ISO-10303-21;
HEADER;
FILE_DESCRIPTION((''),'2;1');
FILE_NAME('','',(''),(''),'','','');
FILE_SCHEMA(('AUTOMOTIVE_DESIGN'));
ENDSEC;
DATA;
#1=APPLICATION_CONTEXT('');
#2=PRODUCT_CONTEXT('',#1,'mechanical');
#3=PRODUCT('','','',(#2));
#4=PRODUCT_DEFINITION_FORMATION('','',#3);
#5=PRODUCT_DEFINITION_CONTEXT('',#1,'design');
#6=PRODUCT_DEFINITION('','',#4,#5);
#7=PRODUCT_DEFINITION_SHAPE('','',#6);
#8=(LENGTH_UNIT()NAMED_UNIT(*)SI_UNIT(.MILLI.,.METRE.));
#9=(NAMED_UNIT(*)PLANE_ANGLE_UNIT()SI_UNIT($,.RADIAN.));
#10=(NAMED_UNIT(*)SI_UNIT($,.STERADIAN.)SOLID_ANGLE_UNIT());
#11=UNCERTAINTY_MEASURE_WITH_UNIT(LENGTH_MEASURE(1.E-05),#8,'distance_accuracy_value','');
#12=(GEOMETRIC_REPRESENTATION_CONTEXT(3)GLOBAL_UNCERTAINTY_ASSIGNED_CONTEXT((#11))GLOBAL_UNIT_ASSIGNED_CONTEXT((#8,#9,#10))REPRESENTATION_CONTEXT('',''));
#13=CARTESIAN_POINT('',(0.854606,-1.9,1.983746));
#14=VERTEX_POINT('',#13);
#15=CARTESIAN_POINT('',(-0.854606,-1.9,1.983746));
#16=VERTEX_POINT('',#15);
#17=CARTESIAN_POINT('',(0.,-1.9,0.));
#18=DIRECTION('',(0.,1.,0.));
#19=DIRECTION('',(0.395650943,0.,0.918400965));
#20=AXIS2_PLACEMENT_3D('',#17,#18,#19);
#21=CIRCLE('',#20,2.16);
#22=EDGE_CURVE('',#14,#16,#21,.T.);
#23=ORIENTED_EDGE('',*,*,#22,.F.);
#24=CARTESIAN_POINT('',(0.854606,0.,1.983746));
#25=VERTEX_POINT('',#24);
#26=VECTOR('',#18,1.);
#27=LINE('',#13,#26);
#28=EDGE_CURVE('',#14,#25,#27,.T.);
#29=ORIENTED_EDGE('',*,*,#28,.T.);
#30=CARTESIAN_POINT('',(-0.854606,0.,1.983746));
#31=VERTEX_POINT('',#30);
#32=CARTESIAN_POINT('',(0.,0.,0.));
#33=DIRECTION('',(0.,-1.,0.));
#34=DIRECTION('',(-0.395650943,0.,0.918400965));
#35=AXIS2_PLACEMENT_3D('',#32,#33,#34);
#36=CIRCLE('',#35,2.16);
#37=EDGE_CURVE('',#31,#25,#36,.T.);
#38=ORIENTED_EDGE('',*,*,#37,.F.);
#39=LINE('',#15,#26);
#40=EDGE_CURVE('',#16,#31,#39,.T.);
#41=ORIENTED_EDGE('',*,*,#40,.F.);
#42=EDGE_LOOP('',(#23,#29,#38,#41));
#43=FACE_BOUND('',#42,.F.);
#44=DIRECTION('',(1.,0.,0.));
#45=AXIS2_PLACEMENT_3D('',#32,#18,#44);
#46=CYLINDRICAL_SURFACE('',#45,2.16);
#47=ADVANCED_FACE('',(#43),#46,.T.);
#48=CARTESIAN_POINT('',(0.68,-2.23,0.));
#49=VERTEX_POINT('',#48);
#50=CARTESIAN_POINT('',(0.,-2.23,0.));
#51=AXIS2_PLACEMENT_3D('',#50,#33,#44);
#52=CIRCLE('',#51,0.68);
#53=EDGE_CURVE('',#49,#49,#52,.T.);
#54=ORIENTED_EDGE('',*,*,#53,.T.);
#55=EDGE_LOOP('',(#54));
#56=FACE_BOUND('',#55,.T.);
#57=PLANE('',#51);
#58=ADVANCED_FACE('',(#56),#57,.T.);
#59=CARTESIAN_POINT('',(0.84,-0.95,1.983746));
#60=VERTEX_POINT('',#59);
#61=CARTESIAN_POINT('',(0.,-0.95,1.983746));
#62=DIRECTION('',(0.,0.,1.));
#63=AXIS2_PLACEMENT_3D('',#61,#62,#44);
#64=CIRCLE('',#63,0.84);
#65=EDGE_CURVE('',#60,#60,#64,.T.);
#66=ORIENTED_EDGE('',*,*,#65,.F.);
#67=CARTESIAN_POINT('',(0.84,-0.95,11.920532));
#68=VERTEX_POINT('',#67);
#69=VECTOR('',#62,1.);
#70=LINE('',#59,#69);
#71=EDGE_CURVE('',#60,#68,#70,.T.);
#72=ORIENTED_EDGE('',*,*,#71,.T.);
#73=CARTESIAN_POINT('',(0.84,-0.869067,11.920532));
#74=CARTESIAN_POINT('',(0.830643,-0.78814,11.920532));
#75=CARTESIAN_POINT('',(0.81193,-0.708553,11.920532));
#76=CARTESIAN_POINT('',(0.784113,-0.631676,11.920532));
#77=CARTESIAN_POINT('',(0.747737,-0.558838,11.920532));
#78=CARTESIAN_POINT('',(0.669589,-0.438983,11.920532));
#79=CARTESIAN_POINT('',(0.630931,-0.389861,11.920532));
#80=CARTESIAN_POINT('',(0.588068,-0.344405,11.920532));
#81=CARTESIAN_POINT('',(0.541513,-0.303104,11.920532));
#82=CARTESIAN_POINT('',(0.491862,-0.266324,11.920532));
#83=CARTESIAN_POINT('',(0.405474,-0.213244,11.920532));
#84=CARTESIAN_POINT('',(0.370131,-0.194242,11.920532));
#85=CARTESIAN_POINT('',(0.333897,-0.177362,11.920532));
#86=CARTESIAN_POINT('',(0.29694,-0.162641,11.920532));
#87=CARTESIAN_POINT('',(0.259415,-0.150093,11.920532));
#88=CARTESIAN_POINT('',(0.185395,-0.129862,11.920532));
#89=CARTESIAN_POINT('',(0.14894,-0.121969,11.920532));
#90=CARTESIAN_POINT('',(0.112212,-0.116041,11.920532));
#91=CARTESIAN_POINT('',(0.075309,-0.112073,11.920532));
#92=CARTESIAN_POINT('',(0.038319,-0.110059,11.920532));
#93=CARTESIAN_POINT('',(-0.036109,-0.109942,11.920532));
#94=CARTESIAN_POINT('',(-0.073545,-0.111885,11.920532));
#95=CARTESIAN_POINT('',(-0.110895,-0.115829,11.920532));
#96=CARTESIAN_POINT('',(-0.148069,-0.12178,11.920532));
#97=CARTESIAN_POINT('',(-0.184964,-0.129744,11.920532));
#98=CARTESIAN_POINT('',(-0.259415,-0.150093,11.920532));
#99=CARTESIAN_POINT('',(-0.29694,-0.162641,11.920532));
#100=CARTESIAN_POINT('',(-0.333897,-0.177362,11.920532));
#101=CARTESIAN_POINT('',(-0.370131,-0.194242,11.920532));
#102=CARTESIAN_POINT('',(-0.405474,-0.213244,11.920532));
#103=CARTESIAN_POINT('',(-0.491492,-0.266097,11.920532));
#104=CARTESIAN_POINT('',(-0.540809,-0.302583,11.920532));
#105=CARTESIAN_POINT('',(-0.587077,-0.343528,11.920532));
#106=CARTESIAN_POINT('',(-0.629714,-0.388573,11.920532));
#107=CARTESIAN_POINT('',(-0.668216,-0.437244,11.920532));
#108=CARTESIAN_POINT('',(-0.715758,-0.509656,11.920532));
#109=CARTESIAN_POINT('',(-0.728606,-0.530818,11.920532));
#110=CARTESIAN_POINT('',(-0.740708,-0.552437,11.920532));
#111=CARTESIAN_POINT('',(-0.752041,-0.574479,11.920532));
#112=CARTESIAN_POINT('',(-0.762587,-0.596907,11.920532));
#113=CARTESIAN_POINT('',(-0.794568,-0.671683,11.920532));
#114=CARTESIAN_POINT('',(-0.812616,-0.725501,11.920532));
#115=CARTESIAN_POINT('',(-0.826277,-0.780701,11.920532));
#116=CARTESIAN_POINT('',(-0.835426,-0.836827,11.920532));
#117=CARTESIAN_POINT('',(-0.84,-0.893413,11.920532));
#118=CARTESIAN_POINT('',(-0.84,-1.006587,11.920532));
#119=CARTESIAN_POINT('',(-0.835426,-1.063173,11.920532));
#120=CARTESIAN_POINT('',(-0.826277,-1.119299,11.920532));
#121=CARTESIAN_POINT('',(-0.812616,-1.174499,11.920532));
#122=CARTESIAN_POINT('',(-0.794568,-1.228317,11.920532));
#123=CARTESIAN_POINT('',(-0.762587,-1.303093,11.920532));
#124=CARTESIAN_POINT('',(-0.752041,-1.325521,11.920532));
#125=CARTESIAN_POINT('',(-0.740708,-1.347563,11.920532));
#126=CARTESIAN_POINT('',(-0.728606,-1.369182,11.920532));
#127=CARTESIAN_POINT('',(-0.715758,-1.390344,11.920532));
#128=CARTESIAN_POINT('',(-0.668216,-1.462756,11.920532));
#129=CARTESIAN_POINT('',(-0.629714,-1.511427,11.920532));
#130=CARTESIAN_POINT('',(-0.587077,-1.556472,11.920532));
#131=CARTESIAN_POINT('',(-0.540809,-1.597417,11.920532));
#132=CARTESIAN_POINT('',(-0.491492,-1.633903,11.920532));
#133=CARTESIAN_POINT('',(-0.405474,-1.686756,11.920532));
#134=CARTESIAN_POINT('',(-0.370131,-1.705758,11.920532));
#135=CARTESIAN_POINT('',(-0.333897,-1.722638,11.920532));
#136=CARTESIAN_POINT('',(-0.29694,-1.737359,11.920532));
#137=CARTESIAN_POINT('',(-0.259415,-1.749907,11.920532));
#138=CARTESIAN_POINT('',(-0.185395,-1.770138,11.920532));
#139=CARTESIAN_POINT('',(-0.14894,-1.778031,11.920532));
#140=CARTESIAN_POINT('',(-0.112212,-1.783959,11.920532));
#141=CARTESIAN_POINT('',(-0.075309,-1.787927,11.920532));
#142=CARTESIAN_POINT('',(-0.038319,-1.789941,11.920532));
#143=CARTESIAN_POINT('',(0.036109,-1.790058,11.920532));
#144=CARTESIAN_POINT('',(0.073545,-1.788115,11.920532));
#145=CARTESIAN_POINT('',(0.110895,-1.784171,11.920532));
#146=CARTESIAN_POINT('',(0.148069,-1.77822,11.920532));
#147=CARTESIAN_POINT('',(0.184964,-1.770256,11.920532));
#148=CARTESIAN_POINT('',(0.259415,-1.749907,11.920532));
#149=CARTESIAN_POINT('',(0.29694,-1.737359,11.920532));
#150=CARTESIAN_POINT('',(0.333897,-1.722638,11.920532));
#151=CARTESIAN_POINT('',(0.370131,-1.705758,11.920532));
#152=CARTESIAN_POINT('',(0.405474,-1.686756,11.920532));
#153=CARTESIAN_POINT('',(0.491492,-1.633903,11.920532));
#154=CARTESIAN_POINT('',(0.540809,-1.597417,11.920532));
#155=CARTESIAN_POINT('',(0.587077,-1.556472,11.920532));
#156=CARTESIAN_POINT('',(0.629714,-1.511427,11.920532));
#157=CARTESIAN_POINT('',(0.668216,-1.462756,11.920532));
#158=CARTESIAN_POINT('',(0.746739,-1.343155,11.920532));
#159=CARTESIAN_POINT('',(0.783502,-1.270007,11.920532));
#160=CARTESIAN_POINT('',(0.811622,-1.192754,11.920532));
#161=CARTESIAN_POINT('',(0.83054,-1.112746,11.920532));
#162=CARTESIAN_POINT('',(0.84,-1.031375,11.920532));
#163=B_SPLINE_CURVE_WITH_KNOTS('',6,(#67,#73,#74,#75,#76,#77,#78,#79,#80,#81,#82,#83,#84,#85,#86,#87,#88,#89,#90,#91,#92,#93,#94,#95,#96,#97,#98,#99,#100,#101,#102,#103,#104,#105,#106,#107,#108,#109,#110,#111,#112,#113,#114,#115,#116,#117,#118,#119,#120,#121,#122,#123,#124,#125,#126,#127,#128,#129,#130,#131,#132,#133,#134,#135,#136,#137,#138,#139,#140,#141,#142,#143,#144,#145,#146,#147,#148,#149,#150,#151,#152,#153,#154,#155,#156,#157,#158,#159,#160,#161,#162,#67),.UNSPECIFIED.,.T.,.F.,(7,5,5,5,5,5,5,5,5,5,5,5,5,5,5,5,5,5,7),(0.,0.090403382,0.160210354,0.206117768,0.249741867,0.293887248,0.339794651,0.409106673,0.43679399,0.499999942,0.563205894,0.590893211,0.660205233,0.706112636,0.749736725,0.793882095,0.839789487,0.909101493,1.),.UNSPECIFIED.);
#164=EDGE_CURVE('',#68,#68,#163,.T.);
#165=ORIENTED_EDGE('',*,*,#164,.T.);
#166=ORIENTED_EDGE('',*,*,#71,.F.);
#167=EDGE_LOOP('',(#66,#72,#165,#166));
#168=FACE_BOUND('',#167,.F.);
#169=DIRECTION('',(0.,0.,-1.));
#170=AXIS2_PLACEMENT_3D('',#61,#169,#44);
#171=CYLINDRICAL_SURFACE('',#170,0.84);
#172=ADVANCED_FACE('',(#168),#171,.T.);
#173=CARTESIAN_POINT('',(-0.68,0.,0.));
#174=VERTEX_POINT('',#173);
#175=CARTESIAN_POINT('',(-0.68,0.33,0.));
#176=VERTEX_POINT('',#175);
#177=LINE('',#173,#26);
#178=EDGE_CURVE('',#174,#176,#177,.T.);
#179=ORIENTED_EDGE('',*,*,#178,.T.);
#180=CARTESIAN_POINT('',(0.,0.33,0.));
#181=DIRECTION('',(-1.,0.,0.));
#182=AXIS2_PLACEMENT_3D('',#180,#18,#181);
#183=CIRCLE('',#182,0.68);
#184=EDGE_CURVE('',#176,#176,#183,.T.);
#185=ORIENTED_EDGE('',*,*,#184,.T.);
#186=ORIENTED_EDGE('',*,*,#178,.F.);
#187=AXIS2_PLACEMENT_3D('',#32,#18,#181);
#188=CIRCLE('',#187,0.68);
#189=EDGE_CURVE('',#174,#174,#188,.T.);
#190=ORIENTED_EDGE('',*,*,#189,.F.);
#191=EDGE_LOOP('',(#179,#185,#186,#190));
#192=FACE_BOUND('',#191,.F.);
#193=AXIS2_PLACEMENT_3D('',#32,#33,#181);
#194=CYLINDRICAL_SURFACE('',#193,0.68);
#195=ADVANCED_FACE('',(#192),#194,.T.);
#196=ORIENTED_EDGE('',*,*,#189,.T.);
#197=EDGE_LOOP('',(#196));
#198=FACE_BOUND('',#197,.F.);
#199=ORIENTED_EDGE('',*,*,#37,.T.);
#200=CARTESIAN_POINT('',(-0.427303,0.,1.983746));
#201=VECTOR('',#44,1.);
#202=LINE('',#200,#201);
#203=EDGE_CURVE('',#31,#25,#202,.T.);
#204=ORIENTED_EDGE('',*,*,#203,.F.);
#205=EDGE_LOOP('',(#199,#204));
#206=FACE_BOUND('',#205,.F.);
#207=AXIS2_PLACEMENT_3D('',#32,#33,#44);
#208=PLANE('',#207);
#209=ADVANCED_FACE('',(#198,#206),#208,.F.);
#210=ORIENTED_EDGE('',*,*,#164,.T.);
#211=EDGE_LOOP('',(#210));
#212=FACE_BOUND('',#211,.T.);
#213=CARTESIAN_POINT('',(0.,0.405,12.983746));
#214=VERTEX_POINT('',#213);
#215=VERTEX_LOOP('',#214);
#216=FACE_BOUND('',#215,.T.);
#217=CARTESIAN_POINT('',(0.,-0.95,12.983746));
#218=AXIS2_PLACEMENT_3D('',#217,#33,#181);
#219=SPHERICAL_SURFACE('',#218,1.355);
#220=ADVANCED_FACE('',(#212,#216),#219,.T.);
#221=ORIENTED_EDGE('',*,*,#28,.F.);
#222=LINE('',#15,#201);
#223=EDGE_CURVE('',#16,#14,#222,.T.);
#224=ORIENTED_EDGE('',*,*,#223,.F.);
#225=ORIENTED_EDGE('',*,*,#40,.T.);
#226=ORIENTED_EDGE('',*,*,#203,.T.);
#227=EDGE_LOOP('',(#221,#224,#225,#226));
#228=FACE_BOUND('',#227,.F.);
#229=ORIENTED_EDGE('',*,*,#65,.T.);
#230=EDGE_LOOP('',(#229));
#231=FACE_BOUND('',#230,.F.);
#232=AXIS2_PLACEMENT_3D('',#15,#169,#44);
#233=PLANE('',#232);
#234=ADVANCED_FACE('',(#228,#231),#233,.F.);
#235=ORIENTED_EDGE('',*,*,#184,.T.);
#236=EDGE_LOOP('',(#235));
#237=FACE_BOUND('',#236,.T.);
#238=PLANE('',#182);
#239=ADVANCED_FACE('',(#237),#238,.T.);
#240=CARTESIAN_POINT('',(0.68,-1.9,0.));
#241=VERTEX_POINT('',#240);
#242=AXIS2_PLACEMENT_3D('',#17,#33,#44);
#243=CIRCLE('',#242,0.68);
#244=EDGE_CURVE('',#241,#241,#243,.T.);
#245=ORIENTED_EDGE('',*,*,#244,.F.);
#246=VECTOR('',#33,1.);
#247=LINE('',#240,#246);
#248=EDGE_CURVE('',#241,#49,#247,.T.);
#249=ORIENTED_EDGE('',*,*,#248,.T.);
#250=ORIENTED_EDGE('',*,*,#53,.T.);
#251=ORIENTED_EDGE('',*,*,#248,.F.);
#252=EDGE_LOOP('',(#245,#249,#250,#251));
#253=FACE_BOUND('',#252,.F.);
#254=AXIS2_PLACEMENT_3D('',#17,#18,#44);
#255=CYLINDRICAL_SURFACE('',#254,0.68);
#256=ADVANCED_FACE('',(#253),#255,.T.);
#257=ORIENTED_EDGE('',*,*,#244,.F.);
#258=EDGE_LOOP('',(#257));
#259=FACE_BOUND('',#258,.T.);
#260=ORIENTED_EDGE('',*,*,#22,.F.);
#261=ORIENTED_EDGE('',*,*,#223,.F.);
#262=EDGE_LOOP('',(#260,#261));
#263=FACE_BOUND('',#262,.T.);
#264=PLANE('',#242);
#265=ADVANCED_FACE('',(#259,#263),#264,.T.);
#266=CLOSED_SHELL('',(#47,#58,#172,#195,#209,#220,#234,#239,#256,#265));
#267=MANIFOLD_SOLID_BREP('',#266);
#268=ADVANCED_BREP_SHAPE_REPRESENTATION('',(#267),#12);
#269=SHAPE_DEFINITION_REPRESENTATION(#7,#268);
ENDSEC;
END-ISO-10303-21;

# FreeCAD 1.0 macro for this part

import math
import FreeCAD as App
import Part
import Sketcher

doc = App.newDocument("Part")
body = doc.addObject("PartDesign::Body", "Body")

# Sketch on XZ plane
sketch1 = doc.addObject("Sketcher::SketchObject", "Sketch")
body.addObject(sketch1)
sketch1.AttachmentSupport = (doc.XZ_Plane, [""])
sketch1.MapMode = "FlatFace"
sketch1.addGeometry(Part.Circle(App.Vector(0, 0, 0), App.Vector(0, 0, 1), 2.2), False)
sketch1.addConstraint([
    Sketcher.Constraint("Coincident", 0, 3, -1, 1),
    Sketcher.Constraint("Diameter", 0, 4.32),
])
pad1 = doc.addObject("PartDesign::Pad", "Pad")
body.addObject(pad1)
pad1.Profile = sketch1
pad1.Length = 1.9

# Sketch on XZ plane
sketch2 = doc.addObject("Sketcher::SketchObject", "Sketch001")
body.addObject(sketch2)
sketch2.AttachmentSupport = (doc.XZ_Plane, [""])
sketch2.MapMode = "FlatFace"
sketch2.AttachmentOffset = App.Placement(App.Vector(0, 0, 1.9), App.Rotation())
sketch2.addGeometry(Part.Circle(App.Vector(0, 0, 0), App.Vector(0, 0, 1), 0.7), False)
sketch2.addConstraint([
    Sketcher.Constraint("Coincident", 0, 3, -1, 1),
    Sketcher.Constraint("Diameter", 0, 1.36),
])
pad2 = doc.addObject("PartDesign::Pad", "Pad001")
body.addObject(pad2)
pad2.Profile = sketch2
pad2.Length = 0.33

# Sketch on XZ plane
sketch3 = doc.addObject("Sketcher::SketchObject", "Sketch002")
body.addObject(sketch3)
sketch3.AttachmentSupport = (doc.XZ_Plane, [""])
sketch3.MapMode = "FlatFace"
sketch3.addGeometry(Part.Circle(App.Vector(0, 0, 0), App.Vector(0, 0, 1), 0.7), False)
sketch3.addConstraint([
    Sketcher.Constraint("Coincident", 0, 3, -1, 1),
    Sketcher.Constraint("Diameter", 0, 1.36),
])
pad3 = doc.addObject("PartDesign::Pad", "Pad002")
body.addObject(pad3)
pad3.Profile = sketch3
pad3.Length = 0.33
pad3.Reversed = True

# Sketch on XZ plane
sketch4 = doc.addObject("Sketcher::SketchObject", "Sketch003")
body.addObject(sketch4)
sketch4.AttachmentSupport = (doc.XZ_Plane, [""])
sketch4.MapMode = "FlatFace"
sketch4.AttachmentOffset = App.Placement(App.Vector(0, 0, 1.9), App.Rotation())
sketch4.addGeometry([
    Part.ArcOfCircle(Part.Circle(App.Vector(0, 0, 0), App.Vector(0, 0, 1), 2.2), math.radians(67), math.radians(113)),
    Part.LineSegment(App.Vector(-0.9, 2, 0), App.Vector(0.9, 2, 0)),
], False)
sketch4.addConstraint([
    Sketcher.Constraint("Coincident", 0, 1, 1, 2),
    Sketcher.Constraint("Coincident", 1, 1, 0, 2),
    Sketcher.Constraint("Horizontal", 1),
    Sketcher.Constraint("Coincident", 0, 3, -1, 1),
    Sketcher.Constraint("Radius", 0, 2.159999),
    Sketcher.Constraint("DistanceX", 1, 1, 1, 2, 1.709212),
])
pocket1 = doc.addObject("PartDesign::Pocket", "Pocket")
body.addObject(pocket1)
pocket1.Profile = sketch4
pocket1.Length = 25

# Sketch on XY plane
sketch5 = doc.addObject("Sketcher::SketchObject", "Sketch004")
body.addObject(sketch5)
sketch5.AttachmentSupport = (doc.XY_Plane, [""])
sketch5.MapMode = "FlatFace"
sketch5.AttachmentOffset = App.Placement(App.Vector(0, 0, 1.983746), App.Rotation())
sketch5.addGeometry(Part.Circle(App.Vector(0, -0.9, 0), App.Vector(0, 0, 1), 0.8), False)
sketch5.addConstraint([
    Sketcher.Constraint("PointOnObject", 0, 3, -2),
    Sketcher.Constraint("Diameter", 0, 1.68),
    Sketcher.Constraint("DistanceY", 0, 3, -1, 1, 0.95),
])
pad4 = doc.addObject("PartDesign::Pad", "Pad003")
body.addObject(pad4)
pad4.Profile = sketch5
pad4.Length = 11

# Sketch on XY plane
sketch6 = doc.addObject("Sketcher::SketchObject", "Sketch005")
body.addObject(sketch6)
sketch6.AttachmentSupport = (doc.XY_Plane, [""])
sketch6.MapMode = "FlatFace"
sketch6.AttachmentOffset = App.Placement(App.Vector(0, 0, 12.983746), App.Rotation())
sketch6.addGeometry([
    Part.ArcOfCircle(Part.Circle(App.Vector(0, -0.9, 0), App.Vector(0, 0, 1), 1.4), math.radians(90), math.radians(270)),
    Part.LineSegment(App.Vector(0, -2.3, 0), App.Vector(0, 0.4, 0)),
], False)
sketch6.addConstraint([
    Sketcher.Constraint("Coincident", 0, 1, 1, 2),
    Sketcher.Constraint("Coincident", 1, 1, 0, 2),
    Sketcher.Constraint("Vertical", 1),
    Sketcher.Constraint("PointOnObject", 0, 3, -2),
    Sketcher.Constraint("PointOnObject", 0, 1, -2),
    Sketcher.Constraint("Radius", 0, 1.355),
    Sketcher.Constraint("DistanceY", 0, 3, -1, 1, 0.95),
])
revolution = doc.addObject("PartDesign::Revolution", "Revolution")
body.addObject(revolution)
revolution.Profile = sketch6
revolution.ReferenceAxis = (sketch6, ["V_Axis"])
revolution.Angle = 360

doc.recompute()
